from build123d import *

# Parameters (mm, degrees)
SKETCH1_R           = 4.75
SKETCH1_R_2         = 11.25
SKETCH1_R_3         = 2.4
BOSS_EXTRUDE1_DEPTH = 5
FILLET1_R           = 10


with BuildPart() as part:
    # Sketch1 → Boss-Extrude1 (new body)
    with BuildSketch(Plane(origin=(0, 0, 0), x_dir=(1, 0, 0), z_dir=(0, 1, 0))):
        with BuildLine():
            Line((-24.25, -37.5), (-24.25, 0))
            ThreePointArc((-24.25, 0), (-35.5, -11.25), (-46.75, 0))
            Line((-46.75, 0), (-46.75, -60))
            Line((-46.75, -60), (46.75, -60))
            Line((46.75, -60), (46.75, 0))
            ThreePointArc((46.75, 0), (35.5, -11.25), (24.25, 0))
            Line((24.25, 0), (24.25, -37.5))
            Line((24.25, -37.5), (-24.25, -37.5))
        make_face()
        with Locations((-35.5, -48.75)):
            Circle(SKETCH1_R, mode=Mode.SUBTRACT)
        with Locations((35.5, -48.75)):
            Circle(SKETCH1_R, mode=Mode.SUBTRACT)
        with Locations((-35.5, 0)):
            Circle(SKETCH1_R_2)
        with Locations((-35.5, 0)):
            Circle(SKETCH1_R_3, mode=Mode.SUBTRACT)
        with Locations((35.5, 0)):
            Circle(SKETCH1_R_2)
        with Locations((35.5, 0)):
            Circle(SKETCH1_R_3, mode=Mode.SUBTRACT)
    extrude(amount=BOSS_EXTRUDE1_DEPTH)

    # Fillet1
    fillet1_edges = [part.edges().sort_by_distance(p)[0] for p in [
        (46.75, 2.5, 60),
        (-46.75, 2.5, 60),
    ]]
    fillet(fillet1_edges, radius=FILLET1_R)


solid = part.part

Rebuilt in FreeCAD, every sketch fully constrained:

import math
import FreeCAD as App
import Part
import Sketcher
from FreeCAD import Vector


def edges_at(feature, points):
    """Names of the edges that pass closest to the given points."""
    edges = feature.Shape.Edges
    near = lambda p: min(range(len(edges)), key=lambda i: edges[i].distToShape(Part.Vertex(*p))[0])
    return sorted({f"Edge{near(p) + 1}" for p in points})

doc = App.newDocument("Part")
params = doc.addObject("Spreadsheet::Sheet", "Params")
for row, (alias, value) in enumerate([
    ("sketch1_diameter", "9.5 mm"),
    ("sketch1_diameter2", "4.8 mm"),
    ("sketch1_height", "60 mm"),
    ("sketch1_radius", "11.25 mm"),
    ("sketch1_width", "93.5 mm"),
    ("pad1_length", "5 mm"),
    ("fillet_radius", "10 mm"),
], start=1):
    params.set(f"A{row}", alias)
    params.set(f"B{row}", "=" + value)
    params.setAlias(f"B{row}", alias)

body = doc.addObject("PartDesign::Body", "Body")

# Sketch on XZ plane
sketch1 = doc.addObject("Sketcher::SketchObject", "Sketch")
body.addObject(sketch1)
sketch1.AttachmentSupport = (doc.XZ_Plane, [""])
sketch1.MapMode = "FlatFace"
sketch1.addGeometry([
    Part.LineSegment(Vector(-24.25, 37.5, 0), Vector(-24.25, 0, 0)),  # 0
    Part.ArcOfCircle(Part.Circle(Vector(-35.5, 0, 0), Vector(0, 0, 1), 11.25), math.radians(180), math.radians(360)),  # 1
    Part.LineSegment(Vector(-46.75, 0, 0), Vector(-46.75, 60, 0)),  # 2
    Part.LineSegment(Vector(-46.75, 60, 0), Vector(46.75, 60, 0)),  # 3
    Part.LineSegment(Vector(46.75, 60, 0), Vector(46.75, 0, 0)),  # 4
    Part.ArcOfCircle(Part.Circle(Vector(35.5, 0, 0), Vector(0, 0, 1), 11.25), math.radians(180), math.radians(360)),  # 5
    Part.LineSegment(Vector(24.25, 0, 0), Vector(24.25, 37.5, 0)),  # 6
    Part.LineSegment(Vector(24.25, 37.5, 0), Vector(-24.25, 37.5, 0)),  # 7
    Part.Circle(Vector(-35.5, 48.75, 0), Vector(0, 0, 1), 4.75),  # 8
    Part.Circle(Vector(35.5, 48.75, 0), Vector(0, 0, 1), 4.75),  # 9
    Part.Circle(Vector(-35.5, 0, 0), Vector(0, 0, 1), 2.4),  # 10
    Part.Circle(Vector(35.5, 0, 0), Vector(0, 0, 1), 2.4),  # 11
], False)
sketch1.addConstraint([
    Sketcher.Constraint("Tangent", 0, 2, 1, 2),
    Sketcher.Constraint("Tangent", 1, 1, 2, 1),
    Sketcher.Constraint("Coincident", 2, 2, 3, 1),
    Sketcher.Constraint("Coincident", 3, 2, 4, 1),
    Sketcher.Constraint("Tangent", 4, 2, 5, 2),
    Sketcher.Constraint("Tangent", 5, 1, 6, 1),
    Sketcher.Constraint("Coincident", 6, 2, 7, 1),
    Sketcher.Constraint("Coincident", 7, 2, 0, 1),
    Sketcher.Constraint("Vertical", 0),
    Sketcher.Constraint("Vertical", 2),
    Sketcher.Constraint("Horizontal", 3),
    Sketcher.Constraint("Vertical", 4),
    Sketcher.Constraint("Vertical", 6),
    Sketcher.Constraint("Horizontal", 7),
    Sketcher.Constraint("Coincident", 10, 3, 1, 3),
    Sketcher.Constraint("Coincident", 11, 3, 5, 3),
    Sketcher.Constraint("Equal", 1, 5),
    Sketcher.Constraint("Equal", 8, 9),
    Sketcher.Constraint("Equal", 10, 11),
    Sketcher.Constraint("Symmetric", 1, 3, 5, 3, -1, 1),
    Sketcher.Constraint("Symmetric", 8, 3, 9, 3, -2),
    Sketcher.Constraint("PointOnObject", 1, 3, -1),
    Sketcher.Constraint("Vertical", 1, 3, 8, 3),
    Sketcher.Constraint("Diameter", 8, 9.5),
    Sketcher.Constraint("Diameter", 10, 4.8),
    Sketcher.Constraint("DistanceY", 2, 1, 2, 2, 60.0),
    Sketcher.Constraint("Radius", 1, 11.25),
    Sketcher.Constraint("DistanceX", 3, 1, 3, 2, 93.5),
    Sketcher.Constraint("DistanceY", 0, 2, 0, 1, 37.5),
    Sketcher.Constraint("DistanceY", -1, 1, 8, 3, 48.75),
])
sketch1.setExpression("Constraints[23]", "Params.sketch1_diameter")
sketch1.setExpression("Constraints[24]", "Params.sketch1_diameter2")
sketch1.setExpression("Constraints[25]", "Params.sketch1_height")
sketch1.setExpression("Constraints[26]", "Params.sketch1_radius")
sketch1.setExpression("Constraints[27]", "Params.sketch1_width")
pad1 = doc.addObject("PartDesign::Pad", "Pad")
body.addObject(pad1)
pad1.Profile = sketch1
pad1.setExpression("Length", "Params.pad1_length")
pad1.Reversed = True
doc.recompute()

fillet = doc.addObject("PartDesign::Fillet", "Fillet")
body.addObject(fillet)
fillet.Base = (pad1, edges_at(pad1, [(46.75, 2.5, 60), (-46.75, 2.5, 60)]))
fillet.setExpression("Radius", "Params.fillet_radius")

doc.recompute()
